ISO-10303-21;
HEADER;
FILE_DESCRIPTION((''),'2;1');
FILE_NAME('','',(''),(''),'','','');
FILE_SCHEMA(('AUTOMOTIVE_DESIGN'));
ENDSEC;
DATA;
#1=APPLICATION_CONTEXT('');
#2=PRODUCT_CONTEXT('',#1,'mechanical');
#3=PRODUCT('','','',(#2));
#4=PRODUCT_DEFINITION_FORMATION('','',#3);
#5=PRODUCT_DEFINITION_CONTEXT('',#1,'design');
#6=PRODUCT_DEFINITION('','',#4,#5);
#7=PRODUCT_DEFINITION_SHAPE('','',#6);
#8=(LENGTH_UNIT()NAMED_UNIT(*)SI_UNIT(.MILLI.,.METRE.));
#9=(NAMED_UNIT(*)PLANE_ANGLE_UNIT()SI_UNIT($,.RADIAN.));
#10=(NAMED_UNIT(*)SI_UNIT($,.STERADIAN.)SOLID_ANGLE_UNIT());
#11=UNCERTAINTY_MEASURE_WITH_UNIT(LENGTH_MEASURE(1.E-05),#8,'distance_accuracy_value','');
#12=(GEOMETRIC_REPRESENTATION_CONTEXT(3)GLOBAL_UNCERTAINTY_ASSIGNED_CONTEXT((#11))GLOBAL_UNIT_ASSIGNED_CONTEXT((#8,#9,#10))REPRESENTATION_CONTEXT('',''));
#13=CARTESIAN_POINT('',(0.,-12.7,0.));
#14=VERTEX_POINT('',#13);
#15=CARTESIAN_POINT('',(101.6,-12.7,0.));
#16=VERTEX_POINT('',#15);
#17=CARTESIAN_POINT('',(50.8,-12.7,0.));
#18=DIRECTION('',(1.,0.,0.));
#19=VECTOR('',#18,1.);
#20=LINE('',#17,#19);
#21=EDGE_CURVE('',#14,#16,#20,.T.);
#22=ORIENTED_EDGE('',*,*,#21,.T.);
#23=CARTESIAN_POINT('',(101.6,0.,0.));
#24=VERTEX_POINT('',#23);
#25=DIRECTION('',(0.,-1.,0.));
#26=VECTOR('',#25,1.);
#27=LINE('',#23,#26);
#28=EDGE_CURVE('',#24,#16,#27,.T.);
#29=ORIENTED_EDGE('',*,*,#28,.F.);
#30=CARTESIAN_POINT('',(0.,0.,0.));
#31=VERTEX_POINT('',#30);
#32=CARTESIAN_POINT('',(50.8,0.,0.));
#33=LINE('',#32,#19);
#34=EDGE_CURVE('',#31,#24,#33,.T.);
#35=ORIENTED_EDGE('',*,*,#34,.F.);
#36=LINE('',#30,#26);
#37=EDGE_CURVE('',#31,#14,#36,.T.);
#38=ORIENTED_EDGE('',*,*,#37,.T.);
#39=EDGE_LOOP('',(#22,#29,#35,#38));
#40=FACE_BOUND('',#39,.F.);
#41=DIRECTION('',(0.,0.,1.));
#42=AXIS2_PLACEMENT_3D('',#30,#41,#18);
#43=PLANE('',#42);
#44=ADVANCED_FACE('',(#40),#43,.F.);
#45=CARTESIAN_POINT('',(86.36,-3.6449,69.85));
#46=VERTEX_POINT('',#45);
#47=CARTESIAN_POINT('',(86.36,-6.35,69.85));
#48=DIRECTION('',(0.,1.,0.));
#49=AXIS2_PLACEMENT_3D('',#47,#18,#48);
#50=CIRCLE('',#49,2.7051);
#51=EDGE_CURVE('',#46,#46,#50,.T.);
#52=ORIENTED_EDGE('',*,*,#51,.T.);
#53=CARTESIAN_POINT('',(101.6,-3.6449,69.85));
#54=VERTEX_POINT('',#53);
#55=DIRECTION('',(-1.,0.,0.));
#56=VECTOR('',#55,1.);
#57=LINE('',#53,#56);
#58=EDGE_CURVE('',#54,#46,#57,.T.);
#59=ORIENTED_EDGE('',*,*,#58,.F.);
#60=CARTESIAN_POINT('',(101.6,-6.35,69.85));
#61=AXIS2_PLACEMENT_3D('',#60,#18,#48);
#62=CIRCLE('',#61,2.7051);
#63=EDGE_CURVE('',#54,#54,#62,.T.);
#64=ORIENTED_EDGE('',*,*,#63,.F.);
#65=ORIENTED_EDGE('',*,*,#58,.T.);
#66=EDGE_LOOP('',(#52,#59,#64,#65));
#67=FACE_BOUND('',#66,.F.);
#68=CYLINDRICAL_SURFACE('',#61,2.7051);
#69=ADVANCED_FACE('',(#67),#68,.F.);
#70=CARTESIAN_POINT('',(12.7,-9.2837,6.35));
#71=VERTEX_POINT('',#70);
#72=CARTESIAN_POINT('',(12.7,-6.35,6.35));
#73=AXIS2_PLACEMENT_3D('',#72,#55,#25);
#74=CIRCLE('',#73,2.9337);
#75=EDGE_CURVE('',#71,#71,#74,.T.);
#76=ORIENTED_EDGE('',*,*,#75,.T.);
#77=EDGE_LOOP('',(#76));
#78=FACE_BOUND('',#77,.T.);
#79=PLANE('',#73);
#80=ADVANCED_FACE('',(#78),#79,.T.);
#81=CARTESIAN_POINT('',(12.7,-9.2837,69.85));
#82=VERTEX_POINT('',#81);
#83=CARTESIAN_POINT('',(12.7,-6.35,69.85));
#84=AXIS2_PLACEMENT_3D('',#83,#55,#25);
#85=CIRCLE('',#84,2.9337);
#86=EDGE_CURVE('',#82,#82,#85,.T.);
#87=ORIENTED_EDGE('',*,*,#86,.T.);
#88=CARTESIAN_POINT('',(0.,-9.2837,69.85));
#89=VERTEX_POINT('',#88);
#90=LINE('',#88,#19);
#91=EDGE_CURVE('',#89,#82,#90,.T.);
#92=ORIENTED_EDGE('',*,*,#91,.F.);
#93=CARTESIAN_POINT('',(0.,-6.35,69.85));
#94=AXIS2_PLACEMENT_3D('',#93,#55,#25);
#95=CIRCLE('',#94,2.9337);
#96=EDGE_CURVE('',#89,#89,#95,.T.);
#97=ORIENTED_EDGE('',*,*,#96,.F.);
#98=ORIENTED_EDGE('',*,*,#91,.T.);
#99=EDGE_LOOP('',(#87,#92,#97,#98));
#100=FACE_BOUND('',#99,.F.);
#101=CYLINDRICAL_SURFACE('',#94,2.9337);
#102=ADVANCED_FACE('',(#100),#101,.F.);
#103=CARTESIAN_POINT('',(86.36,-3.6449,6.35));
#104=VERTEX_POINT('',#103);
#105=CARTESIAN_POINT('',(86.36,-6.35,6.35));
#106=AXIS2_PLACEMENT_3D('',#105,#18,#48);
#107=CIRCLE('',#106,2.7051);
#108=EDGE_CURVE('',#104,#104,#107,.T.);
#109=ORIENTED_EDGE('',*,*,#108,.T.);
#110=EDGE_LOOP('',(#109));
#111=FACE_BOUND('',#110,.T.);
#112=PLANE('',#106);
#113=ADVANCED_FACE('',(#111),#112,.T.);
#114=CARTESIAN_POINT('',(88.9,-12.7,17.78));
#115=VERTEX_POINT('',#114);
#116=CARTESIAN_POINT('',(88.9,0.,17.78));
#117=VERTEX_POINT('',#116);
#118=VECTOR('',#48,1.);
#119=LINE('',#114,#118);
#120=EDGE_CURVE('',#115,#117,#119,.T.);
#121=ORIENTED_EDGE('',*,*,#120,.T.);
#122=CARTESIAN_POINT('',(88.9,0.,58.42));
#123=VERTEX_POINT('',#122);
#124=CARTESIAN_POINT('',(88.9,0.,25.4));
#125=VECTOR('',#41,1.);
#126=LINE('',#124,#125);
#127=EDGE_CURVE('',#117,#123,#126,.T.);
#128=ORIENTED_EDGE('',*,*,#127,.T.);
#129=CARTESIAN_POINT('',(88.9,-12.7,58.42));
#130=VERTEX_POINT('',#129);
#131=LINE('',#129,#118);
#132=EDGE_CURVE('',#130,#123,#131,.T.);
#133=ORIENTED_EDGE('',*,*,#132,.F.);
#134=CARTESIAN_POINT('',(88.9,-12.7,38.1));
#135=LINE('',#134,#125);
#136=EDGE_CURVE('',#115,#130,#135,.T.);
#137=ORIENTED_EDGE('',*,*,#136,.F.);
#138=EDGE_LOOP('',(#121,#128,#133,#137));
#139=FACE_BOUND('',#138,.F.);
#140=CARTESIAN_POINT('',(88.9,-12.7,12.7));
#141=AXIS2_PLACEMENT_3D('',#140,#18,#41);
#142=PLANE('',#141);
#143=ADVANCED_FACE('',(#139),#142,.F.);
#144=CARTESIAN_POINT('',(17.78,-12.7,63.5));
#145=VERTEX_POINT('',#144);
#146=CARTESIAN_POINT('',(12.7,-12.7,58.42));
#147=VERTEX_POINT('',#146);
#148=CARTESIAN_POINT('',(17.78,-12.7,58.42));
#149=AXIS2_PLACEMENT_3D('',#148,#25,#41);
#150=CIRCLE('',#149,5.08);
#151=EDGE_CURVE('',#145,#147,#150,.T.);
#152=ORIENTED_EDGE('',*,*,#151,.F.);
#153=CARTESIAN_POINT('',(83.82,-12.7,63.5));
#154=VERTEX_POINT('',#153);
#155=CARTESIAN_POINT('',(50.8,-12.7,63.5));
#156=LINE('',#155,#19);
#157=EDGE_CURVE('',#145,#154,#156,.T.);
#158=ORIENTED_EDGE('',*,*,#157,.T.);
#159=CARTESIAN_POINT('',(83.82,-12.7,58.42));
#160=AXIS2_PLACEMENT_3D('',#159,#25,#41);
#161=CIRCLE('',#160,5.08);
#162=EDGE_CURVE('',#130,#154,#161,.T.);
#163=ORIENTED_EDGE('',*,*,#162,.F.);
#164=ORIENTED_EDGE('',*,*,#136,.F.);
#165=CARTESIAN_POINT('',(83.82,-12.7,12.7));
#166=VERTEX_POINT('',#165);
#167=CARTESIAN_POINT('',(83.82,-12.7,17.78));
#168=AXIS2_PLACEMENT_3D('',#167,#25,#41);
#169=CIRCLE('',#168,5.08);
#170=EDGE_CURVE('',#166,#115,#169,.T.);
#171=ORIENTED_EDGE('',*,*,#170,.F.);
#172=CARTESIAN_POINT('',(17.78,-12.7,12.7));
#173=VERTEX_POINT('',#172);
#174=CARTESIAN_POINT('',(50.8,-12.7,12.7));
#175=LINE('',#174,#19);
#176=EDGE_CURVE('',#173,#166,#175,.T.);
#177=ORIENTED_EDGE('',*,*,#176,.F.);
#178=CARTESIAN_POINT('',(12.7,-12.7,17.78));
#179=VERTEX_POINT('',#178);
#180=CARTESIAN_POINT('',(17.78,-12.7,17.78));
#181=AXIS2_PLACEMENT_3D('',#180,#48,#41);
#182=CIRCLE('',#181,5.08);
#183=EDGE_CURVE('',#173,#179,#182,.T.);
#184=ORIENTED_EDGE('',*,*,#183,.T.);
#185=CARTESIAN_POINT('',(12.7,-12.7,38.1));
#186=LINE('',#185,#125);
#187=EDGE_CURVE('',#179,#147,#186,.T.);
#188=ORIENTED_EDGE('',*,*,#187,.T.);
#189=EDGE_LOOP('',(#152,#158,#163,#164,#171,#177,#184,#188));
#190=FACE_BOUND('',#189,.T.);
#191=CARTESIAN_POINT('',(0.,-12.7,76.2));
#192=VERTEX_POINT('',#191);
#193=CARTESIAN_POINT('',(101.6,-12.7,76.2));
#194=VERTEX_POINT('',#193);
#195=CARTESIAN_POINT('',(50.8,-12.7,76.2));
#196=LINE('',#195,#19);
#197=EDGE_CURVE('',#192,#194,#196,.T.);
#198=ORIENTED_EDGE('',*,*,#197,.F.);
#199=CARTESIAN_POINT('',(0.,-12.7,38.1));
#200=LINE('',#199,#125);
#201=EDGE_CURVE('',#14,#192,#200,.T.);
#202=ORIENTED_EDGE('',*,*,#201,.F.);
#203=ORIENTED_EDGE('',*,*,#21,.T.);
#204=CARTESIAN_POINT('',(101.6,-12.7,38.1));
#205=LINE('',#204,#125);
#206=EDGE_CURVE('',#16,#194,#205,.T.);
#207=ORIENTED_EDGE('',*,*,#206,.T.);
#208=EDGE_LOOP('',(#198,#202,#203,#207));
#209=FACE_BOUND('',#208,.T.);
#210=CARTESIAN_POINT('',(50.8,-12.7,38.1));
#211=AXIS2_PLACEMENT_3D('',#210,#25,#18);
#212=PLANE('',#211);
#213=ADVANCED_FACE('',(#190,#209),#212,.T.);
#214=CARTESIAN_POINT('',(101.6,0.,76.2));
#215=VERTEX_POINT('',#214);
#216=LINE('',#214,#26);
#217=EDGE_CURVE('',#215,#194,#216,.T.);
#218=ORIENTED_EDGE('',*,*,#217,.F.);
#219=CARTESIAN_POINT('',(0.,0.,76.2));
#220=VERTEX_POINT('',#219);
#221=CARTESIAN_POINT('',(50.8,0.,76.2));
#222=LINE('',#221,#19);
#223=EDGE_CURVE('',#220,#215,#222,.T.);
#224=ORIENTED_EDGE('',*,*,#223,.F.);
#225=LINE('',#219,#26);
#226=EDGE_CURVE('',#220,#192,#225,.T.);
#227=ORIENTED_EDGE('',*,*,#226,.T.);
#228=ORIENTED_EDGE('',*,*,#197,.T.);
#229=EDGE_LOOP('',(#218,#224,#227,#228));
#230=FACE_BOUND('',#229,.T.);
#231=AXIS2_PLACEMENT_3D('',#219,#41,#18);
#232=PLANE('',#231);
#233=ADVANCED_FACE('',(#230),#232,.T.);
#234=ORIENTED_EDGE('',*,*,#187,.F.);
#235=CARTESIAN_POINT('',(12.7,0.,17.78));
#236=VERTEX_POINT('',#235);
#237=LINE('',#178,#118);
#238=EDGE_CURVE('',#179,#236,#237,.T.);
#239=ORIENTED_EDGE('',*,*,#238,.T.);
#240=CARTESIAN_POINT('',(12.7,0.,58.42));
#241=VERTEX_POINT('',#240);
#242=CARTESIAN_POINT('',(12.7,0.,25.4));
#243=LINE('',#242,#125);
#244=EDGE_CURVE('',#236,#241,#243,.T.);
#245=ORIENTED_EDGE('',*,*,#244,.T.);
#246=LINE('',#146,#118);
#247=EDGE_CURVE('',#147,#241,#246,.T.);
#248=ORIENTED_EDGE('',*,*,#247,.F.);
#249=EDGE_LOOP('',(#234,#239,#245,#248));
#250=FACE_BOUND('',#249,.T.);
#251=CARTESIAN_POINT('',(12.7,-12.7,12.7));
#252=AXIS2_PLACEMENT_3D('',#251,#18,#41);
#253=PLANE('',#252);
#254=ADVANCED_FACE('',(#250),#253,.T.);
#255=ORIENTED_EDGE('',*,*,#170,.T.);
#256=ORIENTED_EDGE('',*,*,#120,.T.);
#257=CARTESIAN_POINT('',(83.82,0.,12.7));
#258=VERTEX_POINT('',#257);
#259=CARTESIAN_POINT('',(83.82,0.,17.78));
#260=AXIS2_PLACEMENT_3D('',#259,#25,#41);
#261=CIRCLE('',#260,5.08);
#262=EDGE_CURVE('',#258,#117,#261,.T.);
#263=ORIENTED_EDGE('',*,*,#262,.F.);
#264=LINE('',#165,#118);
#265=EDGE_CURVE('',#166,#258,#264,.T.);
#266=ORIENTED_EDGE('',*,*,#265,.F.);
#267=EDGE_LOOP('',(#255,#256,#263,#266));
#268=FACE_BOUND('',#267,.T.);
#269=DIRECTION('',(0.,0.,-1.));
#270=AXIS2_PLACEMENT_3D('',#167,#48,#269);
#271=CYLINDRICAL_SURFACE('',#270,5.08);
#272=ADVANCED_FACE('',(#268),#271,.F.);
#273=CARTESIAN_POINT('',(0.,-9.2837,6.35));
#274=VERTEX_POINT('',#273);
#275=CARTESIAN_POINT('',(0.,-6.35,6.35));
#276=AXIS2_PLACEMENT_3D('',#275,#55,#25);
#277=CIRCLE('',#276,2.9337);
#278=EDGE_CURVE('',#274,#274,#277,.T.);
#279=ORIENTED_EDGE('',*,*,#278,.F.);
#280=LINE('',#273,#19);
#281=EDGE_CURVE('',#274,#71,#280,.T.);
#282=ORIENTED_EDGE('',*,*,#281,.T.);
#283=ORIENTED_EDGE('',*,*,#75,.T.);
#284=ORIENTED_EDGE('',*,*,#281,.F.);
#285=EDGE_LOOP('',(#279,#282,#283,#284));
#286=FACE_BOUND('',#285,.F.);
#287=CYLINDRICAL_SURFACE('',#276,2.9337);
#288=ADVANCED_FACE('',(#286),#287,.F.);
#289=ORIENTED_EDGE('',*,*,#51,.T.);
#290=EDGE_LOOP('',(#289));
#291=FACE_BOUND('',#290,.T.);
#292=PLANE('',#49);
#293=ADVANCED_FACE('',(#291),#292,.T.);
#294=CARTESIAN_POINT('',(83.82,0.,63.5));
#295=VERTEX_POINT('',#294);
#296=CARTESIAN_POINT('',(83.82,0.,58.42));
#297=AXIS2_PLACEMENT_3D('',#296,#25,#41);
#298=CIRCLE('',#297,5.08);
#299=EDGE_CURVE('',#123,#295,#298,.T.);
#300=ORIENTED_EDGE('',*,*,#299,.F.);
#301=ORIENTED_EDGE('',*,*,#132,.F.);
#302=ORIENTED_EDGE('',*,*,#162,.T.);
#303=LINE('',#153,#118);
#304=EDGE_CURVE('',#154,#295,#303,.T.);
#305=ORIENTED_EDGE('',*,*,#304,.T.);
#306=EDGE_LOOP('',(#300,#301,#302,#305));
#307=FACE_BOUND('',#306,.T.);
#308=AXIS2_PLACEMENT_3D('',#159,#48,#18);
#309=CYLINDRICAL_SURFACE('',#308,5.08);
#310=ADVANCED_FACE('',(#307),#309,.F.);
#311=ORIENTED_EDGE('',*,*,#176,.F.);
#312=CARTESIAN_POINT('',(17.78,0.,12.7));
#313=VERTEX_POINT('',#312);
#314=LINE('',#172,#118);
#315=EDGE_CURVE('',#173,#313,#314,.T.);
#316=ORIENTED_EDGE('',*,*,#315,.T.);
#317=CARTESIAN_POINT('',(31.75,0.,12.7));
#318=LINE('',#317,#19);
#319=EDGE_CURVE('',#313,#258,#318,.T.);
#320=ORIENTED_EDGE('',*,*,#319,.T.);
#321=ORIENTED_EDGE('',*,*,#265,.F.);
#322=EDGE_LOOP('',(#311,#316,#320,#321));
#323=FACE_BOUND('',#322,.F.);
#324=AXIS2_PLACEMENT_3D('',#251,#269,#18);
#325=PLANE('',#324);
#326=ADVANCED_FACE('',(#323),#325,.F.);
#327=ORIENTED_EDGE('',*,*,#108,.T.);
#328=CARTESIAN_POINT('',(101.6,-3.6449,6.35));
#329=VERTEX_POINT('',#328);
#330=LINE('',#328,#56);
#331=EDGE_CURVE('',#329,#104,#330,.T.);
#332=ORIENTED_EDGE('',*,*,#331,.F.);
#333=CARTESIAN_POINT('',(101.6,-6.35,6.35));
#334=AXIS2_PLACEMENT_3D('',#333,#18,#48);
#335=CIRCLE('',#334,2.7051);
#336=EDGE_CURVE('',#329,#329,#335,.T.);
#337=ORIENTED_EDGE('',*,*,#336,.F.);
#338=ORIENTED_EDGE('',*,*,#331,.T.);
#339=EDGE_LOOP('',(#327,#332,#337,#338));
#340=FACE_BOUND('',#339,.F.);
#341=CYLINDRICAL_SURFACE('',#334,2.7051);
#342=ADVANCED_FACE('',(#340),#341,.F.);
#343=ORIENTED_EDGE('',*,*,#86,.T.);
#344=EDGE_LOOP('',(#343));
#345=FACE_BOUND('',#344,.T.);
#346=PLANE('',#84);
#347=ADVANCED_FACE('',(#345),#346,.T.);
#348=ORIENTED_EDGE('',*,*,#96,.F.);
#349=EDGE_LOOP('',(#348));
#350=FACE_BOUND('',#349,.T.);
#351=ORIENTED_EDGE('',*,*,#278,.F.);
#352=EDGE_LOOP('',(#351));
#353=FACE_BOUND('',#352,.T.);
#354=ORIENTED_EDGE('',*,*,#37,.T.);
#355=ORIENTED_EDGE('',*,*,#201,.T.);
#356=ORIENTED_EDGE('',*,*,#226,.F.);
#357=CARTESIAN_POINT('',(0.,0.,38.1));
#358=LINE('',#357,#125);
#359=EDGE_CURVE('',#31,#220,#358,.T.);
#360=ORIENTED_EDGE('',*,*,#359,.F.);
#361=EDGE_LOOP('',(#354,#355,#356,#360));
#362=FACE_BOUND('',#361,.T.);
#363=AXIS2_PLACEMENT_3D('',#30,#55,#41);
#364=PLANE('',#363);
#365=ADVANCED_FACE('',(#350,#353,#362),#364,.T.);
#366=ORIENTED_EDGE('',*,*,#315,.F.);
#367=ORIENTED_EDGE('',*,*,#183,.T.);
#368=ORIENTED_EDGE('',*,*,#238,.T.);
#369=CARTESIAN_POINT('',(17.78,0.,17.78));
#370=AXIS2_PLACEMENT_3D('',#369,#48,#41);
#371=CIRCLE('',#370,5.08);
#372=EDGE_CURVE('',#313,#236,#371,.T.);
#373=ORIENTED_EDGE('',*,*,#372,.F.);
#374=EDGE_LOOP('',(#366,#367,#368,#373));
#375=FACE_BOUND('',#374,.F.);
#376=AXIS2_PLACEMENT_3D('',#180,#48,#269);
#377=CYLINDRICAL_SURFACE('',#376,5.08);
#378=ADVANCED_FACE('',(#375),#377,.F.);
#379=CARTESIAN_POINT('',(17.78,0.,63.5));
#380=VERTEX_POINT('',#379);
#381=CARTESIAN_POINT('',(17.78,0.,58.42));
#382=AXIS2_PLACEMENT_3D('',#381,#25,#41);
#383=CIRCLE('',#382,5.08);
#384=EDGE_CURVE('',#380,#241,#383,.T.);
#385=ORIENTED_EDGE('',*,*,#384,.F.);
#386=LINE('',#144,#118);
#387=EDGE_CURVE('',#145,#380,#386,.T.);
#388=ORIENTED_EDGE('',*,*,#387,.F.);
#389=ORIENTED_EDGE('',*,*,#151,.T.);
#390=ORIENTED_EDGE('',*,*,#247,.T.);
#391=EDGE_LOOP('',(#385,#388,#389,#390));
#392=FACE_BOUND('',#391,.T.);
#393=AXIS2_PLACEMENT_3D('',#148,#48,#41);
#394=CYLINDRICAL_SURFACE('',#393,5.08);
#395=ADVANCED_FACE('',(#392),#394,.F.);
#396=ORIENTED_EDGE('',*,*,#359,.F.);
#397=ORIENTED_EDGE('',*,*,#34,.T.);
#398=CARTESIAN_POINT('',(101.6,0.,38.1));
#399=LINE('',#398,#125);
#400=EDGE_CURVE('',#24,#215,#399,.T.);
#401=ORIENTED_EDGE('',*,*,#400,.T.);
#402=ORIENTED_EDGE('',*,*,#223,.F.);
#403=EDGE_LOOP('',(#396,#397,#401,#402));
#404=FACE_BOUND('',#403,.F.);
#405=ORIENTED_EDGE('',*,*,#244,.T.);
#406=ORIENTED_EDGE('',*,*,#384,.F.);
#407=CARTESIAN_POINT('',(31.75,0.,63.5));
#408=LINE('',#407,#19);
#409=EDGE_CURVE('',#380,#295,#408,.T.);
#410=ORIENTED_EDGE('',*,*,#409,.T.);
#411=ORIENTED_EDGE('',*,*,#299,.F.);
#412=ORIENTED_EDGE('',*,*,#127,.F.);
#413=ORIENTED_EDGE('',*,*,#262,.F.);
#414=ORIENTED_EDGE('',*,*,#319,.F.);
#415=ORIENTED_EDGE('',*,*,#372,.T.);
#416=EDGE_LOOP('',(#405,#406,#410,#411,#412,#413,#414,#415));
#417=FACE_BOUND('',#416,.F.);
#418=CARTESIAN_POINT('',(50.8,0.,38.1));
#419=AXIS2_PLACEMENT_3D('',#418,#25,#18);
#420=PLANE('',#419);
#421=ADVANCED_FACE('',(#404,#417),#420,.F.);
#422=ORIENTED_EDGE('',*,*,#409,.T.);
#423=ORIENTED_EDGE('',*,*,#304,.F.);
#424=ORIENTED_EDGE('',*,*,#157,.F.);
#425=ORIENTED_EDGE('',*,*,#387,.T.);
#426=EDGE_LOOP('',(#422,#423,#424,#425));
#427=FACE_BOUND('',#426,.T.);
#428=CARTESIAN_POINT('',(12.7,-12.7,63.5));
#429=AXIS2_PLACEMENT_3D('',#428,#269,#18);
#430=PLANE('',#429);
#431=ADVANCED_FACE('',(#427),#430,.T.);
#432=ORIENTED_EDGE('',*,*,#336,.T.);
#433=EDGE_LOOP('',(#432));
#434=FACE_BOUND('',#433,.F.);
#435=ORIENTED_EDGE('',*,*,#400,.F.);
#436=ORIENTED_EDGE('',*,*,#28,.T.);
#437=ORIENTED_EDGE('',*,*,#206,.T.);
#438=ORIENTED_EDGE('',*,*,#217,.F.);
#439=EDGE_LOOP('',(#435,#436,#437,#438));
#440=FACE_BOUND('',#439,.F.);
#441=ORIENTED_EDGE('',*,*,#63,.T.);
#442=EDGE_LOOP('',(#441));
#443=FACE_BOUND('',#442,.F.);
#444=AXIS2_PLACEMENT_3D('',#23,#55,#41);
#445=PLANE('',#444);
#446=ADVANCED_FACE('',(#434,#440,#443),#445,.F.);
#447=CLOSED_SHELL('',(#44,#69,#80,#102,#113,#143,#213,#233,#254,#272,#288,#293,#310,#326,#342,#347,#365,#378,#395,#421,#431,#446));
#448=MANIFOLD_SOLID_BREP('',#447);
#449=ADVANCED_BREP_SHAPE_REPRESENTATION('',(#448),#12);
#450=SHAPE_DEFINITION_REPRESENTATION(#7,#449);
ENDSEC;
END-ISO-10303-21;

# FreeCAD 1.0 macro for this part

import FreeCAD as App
import Part
import Sketcher
Q = App.Units.Quantity


def edges_at(feature, points):
    """Names of the edges that pass closest to the given points."""
    edges = feature.Shape.Edges
    near = lambda p: min(range(len(edges)), key=lambda i: edges[i].distToShape(Part.Vertex(*p))[0])
    return sorted({f"Edge{near(p) + 1}" for p in points})


def add_polygon(sketch, points):
    """Adds a closed chain of lines whose ends are joined by coincident constraints."""
    first, n = sketch.GeometryCount, len(points)
    for a, b in zip(points, points[1:] + points[:1]):
        sketch.addGeometry(Part.LineSegment(App.Vector(*a, 0), App.Vector(*b, 0)), False)
    for i in range(n):
        sketch.addConstraint(Sketcher.Constraint("Coincident", first + i, 2, first + (i + 1) % n, 1))

doc = App.newDocument("Part")
body = doc.addObject("PartDesign::Body", "Body")

# Sketch on XZ plane
sketch1 = body.newObject("Sketcher::SketchObject", "Sketch")
sketch1.AttachmentSupport = (doc.getObject("XZ_Plane"), [""])
sketch1.MapMode = "FlatFace"
add_polygon(sketch1, [(0, 76), (0, 0), (102, 0), (102, 76)])  # lines 0-3
sketch1.addConstraint([
    Sketcher.Constraint("Vertical", 0),
    Sketcher.Constraint("Horizontal", 1),
    Sketcher.Constraint("Vertical", 2),
    Sketcher.Constraint("Horizontal", 3),
    Sketcher.Constraint("Coincident", 0, 2, -1, 1),
    Sketcher.Constraint("DistanceX", 1, 1, 1, 2, Q("4 in")),
    Sketcher.Constraint("DistanceY", 0, 2, 0, 1, Q("3 in")),
])
pad1 = body.newObject("PartDesign::Pad", "Pad")
pad1.Profile = sketch1
pad1.Length = Q("0.5 in")

# Sketch on YZ plane
sketch2 = body.newObject("Sketcher::SketchObject", "Sketch001")
sketch2.AttachmentSupport = (doc.getObject("YZ_Plane"), [""])
sketch2.MapMode = "FlatFace"
sketch2.AttachmentOffset = App.Placement(App.Vector(0, 0, 4 * 25.4), App.Rotation())
sketch2.addGeometry([
    Part.Circle(App.Vector(-6.3, 69.8, 0), App.Vector(0, 0, 1), 2.7),
    Part.Circle(App.Vector(-6.3, 6.3, 0), App.Vector(0, 0, 1), 2.7),
], False)
sketch2.addConstraint([
    Sketcher.Constraint("Equal", 0, 1),
    Sketcher.Constraint("Vertical", 0, 3, 1, 3),
    Sketcher.Constraint("Diameter", 0, Q("0.213 in")),
    Sketcher.Constraint("DistanceY", 1, 3, 0, 3, Q("2.5 in")),
    Sketcher.Constraint("DistanceX", 0, 3, -1, 1, Q("0.25 in")),
    Sketcher.Constraint("DistanceY", -1, 1, 0, 3, Q("2.75 in")),
])
pocket1 = body.newObject("PartDesign::Pocket", "Pocket")
pocket1.Profile = sketch2
pocket1.Length = Q("0.6 in")

# Sketch on YZ plane
sketch3 = body.newObject("Sketcher::SketchObject", "Sketch002")
sketch3.AttachmentSupport = (doc.getObject("YZ_Plane"), [""])
sketch3.MapMode = "FlatFace"
sketch3.addGeometry([
    Part.Circle(App.Vector(-6.3, 69.8, 0), App.Vector(0, 0, 1), 2.9),
    Part.Circle(App.Vector(-6.3, 6.3, 0), App.Vector(0, 0, 1), 2.9),
], False)
sketch3.addConstraint([
    Sketcher.Constraint("Equal", 0, 1),
    Sketcher.Constraint("Vertical", 0, 3, 1, 3),
    Sketcher.Constraint("Diameter", 0, Q("0.231 in")),
    Sketcher.Constraint("DistanceY", 1, 3, 0, 3, Q("2.5 in")),
    Sketcher.Constraint("DistanceX", 0, 3, -1, 1, Q("0.25 in")),
    Sketcher.Constraint("DistanceY", -1, 1, 0, 3, Q("2.75 in")),
])
pocket2 = body.newObject("PartDesign::Pocket", "Pocket001")
pocket2.Profile = sketch3
pocket2.Length = Q("0.5 in")
pocket2.Reversed = True

# Sketch on XZ plane
sketch4 = body.newObject("Sketcher::SketchObject", "Sketch003")
sketch4.AttachmentSupport = (doc.getObject("XZ_Plane"), [""])
sketch4.MapMode = "FlatFace"
sketch4.AttachmentOffset = App.Placement(App.Vector(0, 0, 0.5 * 25.4), App.Rotation())
add_polygon(sketch4, [(13, 64), (13, 13), (89, 13), (89, 64)])  # lines 0-3
sketch4.addConstraint([
    Sketcher.Constraint("Vertical", 0),
    Sketcher.Constraint("Horizontal", 1),
    Sketcher.Constraint("Vertical", 2),
    Sketcher.Constraint("Horizontal", 3),
    Sketcher.Constraint("DistanceX", 1, 1, 1, 2, Q("3 in")),
    Sketcher.Constraint("DistanceY", 0, 2, 0, 1, Q("2 in")),
    Sketcher.Constraint("DistanceX", -1, 1, 0, 2, Q("0.5 in")),
    Sketcher.Constraint("DistanceY", -1, 1, 0, 2, Q("0.5 in")),
])
pocket3 = body.newObject("PartDesign::Pocket", "Pocket002")
pocket3.Profile = sketch4
pocket3.Length = Q("1 in")
doc.recompute()

fillet = body.newObject("PartDesign::Fillet", "Fillet")
fillet.Base = (pocket3, edges_at(pocket3, [
    (12.7, -6.35, 12.7),
    (88.9, -6.35, 63.5),
    (88.9, -6.35, 12.7),
    (12.7, -6.35, 63.5),
]))
fillet.Radius = Q("0.2 in")

doc.recompute()
